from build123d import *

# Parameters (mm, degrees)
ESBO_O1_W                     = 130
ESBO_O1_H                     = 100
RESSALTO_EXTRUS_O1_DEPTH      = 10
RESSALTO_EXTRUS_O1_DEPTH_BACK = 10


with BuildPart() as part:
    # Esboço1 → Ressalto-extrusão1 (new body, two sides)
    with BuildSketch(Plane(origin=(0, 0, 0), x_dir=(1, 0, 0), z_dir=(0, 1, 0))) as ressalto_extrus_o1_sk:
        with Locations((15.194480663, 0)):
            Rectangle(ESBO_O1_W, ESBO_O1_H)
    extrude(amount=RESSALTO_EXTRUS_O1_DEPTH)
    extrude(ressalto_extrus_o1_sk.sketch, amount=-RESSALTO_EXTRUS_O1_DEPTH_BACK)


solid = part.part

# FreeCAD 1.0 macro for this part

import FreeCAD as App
import Part
import Sketcher
from FreeCAD import Vector
Q = App.Units.Quantity


def add_polygon(sketch, points):
    """Adds a closed chain of lines whose ends are joined by coincident constraints."""
    first, n = sketch.GeometryCount, len(points)
    for a, b in zip(points, points[1:] + points[:1]):
        sketch.addGeometry(Part.LineSegment(App.Vector(*a, 0), App.Vector(*b, 0)), False)
    for i in range(n):
        sketch.addConstraint(Sketcher.Constraint("Coincident", first + i, 2, first + (i + 1) % n, 1))

doc = App.newDocument("Part")
params = doc.addObject("Spreadsheet::Sheet", "Params")
for row, (alias, value) in enumerate([
    ("sketch1_width", "130 mm"),
    ("sketch1_height", "100 mm"),
    ("pad1_length", "10 mm"),
    ("pad1_length2", "10 mm"),
], start=1):
    params.set(f"A{row}", alias)
    params.set(f"B{row}", "=" + value)
    params.setAlias(f"B{row}", alias)

body = doc.addObject("PartDesign::Body", "Body")

# Sketch on XZ plane
sketch1 = body.newObject("Sketcher::SketchObject", "Sketch")
sketch1.AttachmentSupport = (doc.getObject("XZ_Plane"), [""])
sketch1.MapMode = "FlatFace"
add_polygon(sketch1, [(-49.805519, -50), (-49.805519, 50), (80.194481, 50), (80.194481, -50)])  # lines 0-3
sketch1.addConstraint(Sketcher.Constraint("Vertical", 0))
sketch1.addConstraint(Sketcher.Constraint("Horizontal", 1))
sketch1.addConstraint(Sketcher.Constraint("Vertical", 2))
sketch1.addConstraint(Sketcher.Constraint("Horizontal", 3))
sketch1.addConstraint(Sketcher.Constraint("DistanceX", 1, 1, 1, 2, Q("130 mm")))
sketch1.addConstraint(Sketcher.Constraint("DistanceY", 0, 1, 0, 2, Q("100 mm")))
sketch1.addConstraint(Sketcher.Constraint("DistanceY", -1, 1, 0, 2, Q("50 mm")))
sketch1.addConstraint(Sketcher.Constraint("DistanceX", 0, 2, -1, 1, Q("49.805519 mm")))
sketch1.setExpression("Constraints[8]", "Params.sketch1_width")
sketch1.setExpression("Constraints[9]", "Params.sketch1_height")
pad1 = body.newObject("PartDesign::Pad", "Pad")
pad1.Profile = sketch1
pad1.Type = "TwoLengths"
pad1.setExpression("Length", "Params.pad1_length")
pad1.setExpression("Length2", "Params.pad1_length2")
pad1.Reversed = True

doc.recompute()
